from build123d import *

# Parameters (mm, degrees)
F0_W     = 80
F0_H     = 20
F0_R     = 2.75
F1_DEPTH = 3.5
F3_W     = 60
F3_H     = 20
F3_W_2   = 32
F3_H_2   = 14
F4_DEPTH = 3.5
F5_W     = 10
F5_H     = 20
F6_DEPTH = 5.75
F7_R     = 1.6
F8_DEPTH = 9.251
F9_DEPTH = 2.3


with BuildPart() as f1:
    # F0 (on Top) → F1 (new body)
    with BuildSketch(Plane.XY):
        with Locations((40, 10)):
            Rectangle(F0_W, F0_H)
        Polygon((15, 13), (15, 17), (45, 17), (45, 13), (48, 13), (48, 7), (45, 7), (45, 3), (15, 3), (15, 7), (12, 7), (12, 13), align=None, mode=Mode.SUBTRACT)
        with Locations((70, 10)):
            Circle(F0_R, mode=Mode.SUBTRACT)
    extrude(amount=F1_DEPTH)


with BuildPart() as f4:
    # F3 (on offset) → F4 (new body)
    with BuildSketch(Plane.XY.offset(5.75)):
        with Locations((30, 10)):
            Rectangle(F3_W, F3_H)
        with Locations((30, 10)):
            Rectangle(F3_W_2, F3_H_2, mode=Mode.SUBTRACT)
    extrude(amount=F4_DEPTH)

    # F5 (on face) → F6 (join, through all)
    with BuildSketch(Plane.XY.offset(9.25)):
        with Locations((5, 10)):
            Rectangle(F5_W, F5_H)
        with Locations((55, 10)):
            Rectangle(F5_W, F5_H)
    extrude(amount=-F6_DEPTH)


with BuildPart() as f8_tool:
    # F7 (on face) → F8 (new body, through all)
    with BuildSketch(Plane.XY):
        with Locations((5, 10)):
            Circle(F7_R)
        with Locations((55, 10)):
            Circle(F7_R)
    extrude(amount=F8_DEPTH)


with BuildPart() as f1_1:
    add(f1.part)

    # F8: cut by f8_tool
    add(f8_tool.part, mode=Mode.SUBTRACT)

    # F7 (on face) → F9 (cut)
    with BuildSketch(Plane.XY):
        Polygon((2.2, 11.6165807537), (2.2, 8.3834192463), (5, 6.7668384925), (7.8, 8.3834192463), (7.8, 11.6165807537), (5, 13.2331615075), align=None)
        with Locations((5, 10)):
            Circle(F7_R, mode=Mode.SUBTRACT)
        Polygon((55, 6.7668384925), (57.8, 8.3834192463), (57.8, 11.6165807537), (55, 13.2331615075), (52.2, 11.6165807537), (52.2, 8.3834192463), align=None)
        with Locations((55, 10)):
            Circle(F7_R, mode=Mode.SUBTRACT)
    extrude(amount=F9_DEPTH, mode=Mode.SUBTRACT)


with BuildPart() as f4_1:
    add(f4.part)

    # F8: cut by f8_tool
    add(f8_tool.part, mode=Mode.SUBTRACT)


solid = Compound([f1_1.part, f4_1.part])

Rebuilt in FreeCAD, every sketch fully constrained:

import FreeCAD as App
import Part
import Sketcher

V = App.Vector
Q = App.Units.Quantity


def add_polygon(sketch, points):
    """Adds a closed chain of lines whose ends are joined by coincident constraints."""
    first, n = sketch.GeometryCount, len(points)
    for a, b in zip(points, points[1:] + points[:1]):
        sketch.addGeometry(Part.LineSegment(App.Vector(*a, 0), App.Vector(*b, 0)), False)
    for i in range(n):
        sketch.addConstraint(Sketcher.Constraint("Coincident", first + i, 2, first + (i + 1) % n, 1))

doc = App.newDocument("Part")
body = doc.addObject("PartDesign::Body", "Body")

sketch1 = body.newObject("Sketcher::SketchObject", "Sketch")
sketch1.AttachmentSupport = (doc.getObject("XY_Plane"), [""])
sketch1.MapMode = "FlatFace"
add_polygon(sketch1, [(0, 20), (0, 0), (80, 0), (80, 20)])
add_polygon(sketch1, [(12, 13), (15, 13), (15, 17), (45, 17), (45, 13), (48, 13), (48, 7), (45, 7), (45, 3), (15, 3), (15, 7), (12, 7)])
sketch1.addGeometry(Part.Circle(V(70, 10, 0), V(0, 0, 1), 2.8), False)
sketch1.addConstraint([
    Sketcher.Constraint("Vertical", 0),
    Sketcher.Constraint("Horizontal", 1),
    Sketcher.Constraint("Vertical", 2),
    Sketcher.Constraint("Horizontal", 3),
    Sketcher.Constraint("Horizontal", 4),
    Sketcher.Constraint("Vertical", 5),
    Sketcher.Constraint("Horizontal", 6),
    Sketcher.Constraint("Vertical", 7),
    Sketcher.Constraint("Horizontal", 8),
    Sketcher.Constraint("Vertical", 9),
    Sketcher.Constraint("Horizontal", 10),
    Sketcher.Constraint("Vertical", 11),
    Sketcher.Constraint("Horizontal", 12),
    Sketcher.Constraint("Vertical", 13),
    Sketcher.Constraint("Horizontal", 14),
    Sketcher.Constraint("Vertical", 15),
    Sketcher.Constraint("Coincident", 0, 2, -1, 1),
    Sketcher.Constraint("Horizontal", 4, 2, 7, 2),
    Sketcher.Constraint("Horizontal", 10, 2, 13, 2),
    Sketcher.Constraint("Vertical", 7, 2, 10, 2),
    Sketcher.Constraint("Vertical", 5, 2, 12, 2),
    Sketcher.Constraint("Equal", 4, 8),
    Sketcher.Constraint("Equal", 7, 11),
    Sketcher.Constraint("Diameter", 16, Q("5.5 mm")),
    Sketcher.Constraint("DistanceX", 1, 1, 1, 2, Q("80 mm")),
    Sketcher.Constraint("DistanceX", 4, 1, 4, 2, Q("3 mm")),
    Sketcher.Constraint("DistanceX", 6, 1, 6, 2, Q("30 mm")),
    Sketcher.Constraint("DistanceY", 0, 2, 0, 1, Q("20 mm")),
    Sketcher.Constraint("DistanceY", 5, 1, 5, 2, Q("4 mm")),
    Sketcher.Constraint("DistanceY", 9, 2, 9, 1, Q("6 mm")),
    Sketcher.Constraint("DistanceX", -1, 1, 16, 3, Q("70 mm")),
    Sketcher.Constraint("DistanceY", -1, 1, 16, 3, Q("10 mm")),
    Sketcher.Constraint("DistanceX", -1, 1, 4, 2, Q("15 mm")),
    Sketcher.Constraint("DistanceY", -1, 1, 4, 2, Q("13 mm")),
])
pad1 = body.newObject("PartDesign::Pad", "Pad")
pad1.Profile = sketch1
pad1.Length = 3.5
body2 = doc.addObject("PartDesign::Body", "Body001")

sketch2 = body2.newObject("Sketcher::SketchObject", "Sketch001")
sketch2.AttachmentSupport = (doc.getObject("XY_Plane001"), [""])
sketch2.MapMode = "FlatFace"
sketch2.AttachmentOffset = App.Placement(V(0, 0, 5.75), App.Rotation())
add_polygon(sketch2, [(0, 20), (0, 0), (60, 0), (60, 20)])
add_polygon(sketch2, [(46, 3), (14, 3), (14, 17), (46, 17)])
sketch2.addConstraint([
    Sketcher.Constraint("Vertical", 0),
    Sketcher.Constraint("Horizontal", 1),
    Sketcher.Constraint("Vertical", 2),
    Sketcher.Constraint("Horizontal", 3),
    Sketcher.Constraint("Horizontal", 4),
    Sketcher.Constraint("Vertical", 5),
    Sketcher.Constraint("Horizontal", 6),
    Sketcher.Constraint("Vertical", 7),
    Sketcher.Constraint("Coincident", 0, 2, -1, 1),
    Sketcher.Constraint("DistanceX", 1, 1, 1, 2, Q("60 mm")),
    Sketcher.Constraint("DistanceX", 4, 2, 4, 1, Q("32 mm")),
    Sketcher.Constraint("DistanceY", 0, 2, 0, 1, Q("20 mm")),
    Sketcher.Constraint("DistanceY", 5, 1, 5, 2, Q("14 mm")),
    Sketcher.Constraint("DistanceX", -1, 1, 4, 2, Q("14 mm")),
    Sketcher.Constraint("DistanceY", -1, 1, 4, 2, Q("3 mm")),
])
pad2 = body2.newObject("PartDesign::Pad", "Pad001")
pad2.Profile = sketch2
pad2.Length = 3.5

sketch3 = body2.newObject("Sketcher::SketchObject", "Sketch002")
sketch3.AttachmentSupport = (doc.getObject("XY_Plane001"), [""])
sketch3.MapMode = "FlatFace"
sketch3.AttachmentOffset = App.Placement(V(0, 0, 9.25), App.Rotation())
add_polygon(sketch3, [(0, 20), (0, 0), (10, 0), (10, 20)])
add_polygon(sketch3, [(50, 20), (50, 0), (60, 0), (60, 20)])
sketch3.addConstraint([
    Sketcher.Constraint("Vertical", 0),
    Sketcher.Constraint("Horizontal", 1),
    Sketcher.Constraint("Vertical", 2),
    Sketcher.Constraint("Horizontal", 3),
    Sketcher.Constraint("Vertical", 4),
    Sketcher.Constraint("Horizontal", 5),
    Sketcher.Constraint("Vertical", 6),
    Sketcher.Constraint("Horizontal", 7),
    Sketcher.Constraint("Coincident", 0, 2, -1, 1),
    Sketcher.Constraint("PointOnObject", 4, 2, -1),
    Sketcher.Constraint("Horizontal", 3, 2, 6, 2),
    Sketcher.Constraint("Equal", 3, 5),
    Sketcher.Constraint("DistanceX", 1, 1, 1, 2, Q("10 mm")),
    Sketcher.Constraint("DistanceY", 0, 2, 0, 1, Q("20 mm")),
    Sketcher.Constraint("DistanceX", -1, 1, 4, 2, Q("50 mm")),
])
pad3 = body2.newObject("PartDesign::Pad", "Pad002")
pad3.Profile = sketch3
pad3.Length = 5.75
pad3.Reversed = True
body3 = doc.addObject("PartDesign::Body", "Body002")
body3.AllowCompound = True

sketch4 = body3.newObject("Sketcher::SketchObject", "Sketch003")
sketch4.AttachmentSupport = (doc.getObject("XY_Plane002"), [""])
sketch4.MapMode = "FlatFace"
sketch4.addGeometry([
    Part.Circle(V(5, 10, 0), V(0, 0, 1), 1.6),
    Part.Circle(V(55, 10, 0), V(0, 0, 1), 1.6),
], False)
sketch4.addConstraint([
    Sketcher.Constraint("Equal", 0, 1),
    Sketcher.Constraint("Horizontal", 0, 3, 1, 3),
    Sketcher.Constraint("Diameter", 0, Q("3.2 mm")),
    Sketcher.Constraint("DistanceX", -1, 1, 0, 3, Q("5 mm")),
    Sketcher.Constraint("DistanceY", -1, 1, 0, 3, Q("10 mm")),
    Sketcher.Constraint("DistanceX", -1, 1, 1, 3, Q("55 mm")),
])
pad4 = body3.newObject("PartDesign::Pad", "Pad003")
pad4.Profile = sketch4
pad4.Length = 9.251
doc.recompute()

body4 = doc.addObject("PartDesign::Body", "Body003")
body4.BaseFeature = body3
boolean = body.newObject("PartDesign::Boolean", "Boolean")
boolean.Type = "Cut"
boolean.addObjects([body4])
doc.recompute()

sketch5 = body.newObject("Sketcher::SketchObject", "Sketch004")
sketch5.AttachmentSupport = (doc.getObject("XY_Plane"), [""])
sketch5.MapMode = "FlatFace"
add_polygon(sketch5, [(2.2, 11.6), (2.2, 8.4), (5, 6.8), (7.8, 8.4), (7.8, 11.6), (5, 13.2)])
sketch5.addGeometry(Part.Circle(V(5, 10, 0), V(0, 0, 1), 1.6), False)
add_polygon(sketch5, [(55, 6.8), (57.8, 8.4), (57.8, 11.6), (55, 13.2), (52.2, 11.6), (52.2, 8.4)])
sketch5.addGeometry(Part.Circle(V(55, 10, 0), V(0, 0, 1), 1.6), False)
sketch5.addConstraint([
    Sketcher.Constraint("Vertical", 0),
    Sketcher.Constraint("Vertical", 3),
    Sketcher.Constraint("Vertical", 8),
    Sketcher.Constraint("Vertical", 11),
    Sketcher.Constraint("Equal", 6, 13),
    Sketcher.Constraint("Parallel", 1, 4),
    Sketcher.Constraint("Parallel", 2, 5),
    Sketcher.Constraint("Parallel", 5, 7),
    Sketcher.Constraint("Parallel", 4, 9),
    Sketcher.Constraint("Parallel", 7, 10),
    Sketcher.Constraint("Parallel", 9, 12),
    Sketcher.Constraint("Horizontal", 6, 3, 13, 3),
    Sketcher.Constraint("Horizontal", 0, 2, 2, 2),
    Sketcher.Constraint("Horizontal", 3, 2, 5, 2),
    Sketcher.Constraint("Horizontal", 2, 2, 7, 2),
    Sketcher.Constraint("Horizontal", 5, 2, 8, 2),
    Sketcher.Constraint("Horizontal", 4, 2, 9, 2),
    Sketcher.Constraint("Horizontal", 8, 2, 10, 2),
    Sketcher.Constraint("Horizontal", 7, 2, 11, 2),
    Sketcher.Constraint("Vertical", 6, 3, 1, 2),
    Sketcher.Constraint("Vertical", 1, 2, 4, 2),
    Sketcher.Constraint("Vertical", 13, 3, 9, 2),
    Sketcher.Constraint("Diameter", 6, Q("3.2 mm")),
    Sketcher.Constraint("Angle", 1, Q("-30 deg")),
    Sketcher.Constraint("DistanceX", -1, 1, 6, 3, Q("5 mm")),
    Sketcher.Constraint("DistanceY", -1, 1, 6, 3, Q("10 mm")),
    Sketcher.Constraint("DistanceX", -1, 1, 13, 3, Q("55 mm")),
    Sketcher.Constraint("DistanceX", -1, 1, 0, 2, Q("2.2 mm")),
    Sketcher.Constraint("DistanceY", 0, 2, 0, 1, Q("3.233162 mm")),
    Sketcher.Constraint("DistanceY", -1, 1, 0, 2, Q("8.383419 mm")),
])
pocket1 = body.newObject("PartDesign::Pocket", "Pocket")
pocket1.Profile = sketch5
pocket1.Length = 2.3
pocket1.Reversed = True
doc.recompute()

boolean2 = body2.newObject("PartDesign::Boolean", "Boolean001")
boolean2.Type = "Cut"
boolean2.addObjects([body3])

doc.recompute()
